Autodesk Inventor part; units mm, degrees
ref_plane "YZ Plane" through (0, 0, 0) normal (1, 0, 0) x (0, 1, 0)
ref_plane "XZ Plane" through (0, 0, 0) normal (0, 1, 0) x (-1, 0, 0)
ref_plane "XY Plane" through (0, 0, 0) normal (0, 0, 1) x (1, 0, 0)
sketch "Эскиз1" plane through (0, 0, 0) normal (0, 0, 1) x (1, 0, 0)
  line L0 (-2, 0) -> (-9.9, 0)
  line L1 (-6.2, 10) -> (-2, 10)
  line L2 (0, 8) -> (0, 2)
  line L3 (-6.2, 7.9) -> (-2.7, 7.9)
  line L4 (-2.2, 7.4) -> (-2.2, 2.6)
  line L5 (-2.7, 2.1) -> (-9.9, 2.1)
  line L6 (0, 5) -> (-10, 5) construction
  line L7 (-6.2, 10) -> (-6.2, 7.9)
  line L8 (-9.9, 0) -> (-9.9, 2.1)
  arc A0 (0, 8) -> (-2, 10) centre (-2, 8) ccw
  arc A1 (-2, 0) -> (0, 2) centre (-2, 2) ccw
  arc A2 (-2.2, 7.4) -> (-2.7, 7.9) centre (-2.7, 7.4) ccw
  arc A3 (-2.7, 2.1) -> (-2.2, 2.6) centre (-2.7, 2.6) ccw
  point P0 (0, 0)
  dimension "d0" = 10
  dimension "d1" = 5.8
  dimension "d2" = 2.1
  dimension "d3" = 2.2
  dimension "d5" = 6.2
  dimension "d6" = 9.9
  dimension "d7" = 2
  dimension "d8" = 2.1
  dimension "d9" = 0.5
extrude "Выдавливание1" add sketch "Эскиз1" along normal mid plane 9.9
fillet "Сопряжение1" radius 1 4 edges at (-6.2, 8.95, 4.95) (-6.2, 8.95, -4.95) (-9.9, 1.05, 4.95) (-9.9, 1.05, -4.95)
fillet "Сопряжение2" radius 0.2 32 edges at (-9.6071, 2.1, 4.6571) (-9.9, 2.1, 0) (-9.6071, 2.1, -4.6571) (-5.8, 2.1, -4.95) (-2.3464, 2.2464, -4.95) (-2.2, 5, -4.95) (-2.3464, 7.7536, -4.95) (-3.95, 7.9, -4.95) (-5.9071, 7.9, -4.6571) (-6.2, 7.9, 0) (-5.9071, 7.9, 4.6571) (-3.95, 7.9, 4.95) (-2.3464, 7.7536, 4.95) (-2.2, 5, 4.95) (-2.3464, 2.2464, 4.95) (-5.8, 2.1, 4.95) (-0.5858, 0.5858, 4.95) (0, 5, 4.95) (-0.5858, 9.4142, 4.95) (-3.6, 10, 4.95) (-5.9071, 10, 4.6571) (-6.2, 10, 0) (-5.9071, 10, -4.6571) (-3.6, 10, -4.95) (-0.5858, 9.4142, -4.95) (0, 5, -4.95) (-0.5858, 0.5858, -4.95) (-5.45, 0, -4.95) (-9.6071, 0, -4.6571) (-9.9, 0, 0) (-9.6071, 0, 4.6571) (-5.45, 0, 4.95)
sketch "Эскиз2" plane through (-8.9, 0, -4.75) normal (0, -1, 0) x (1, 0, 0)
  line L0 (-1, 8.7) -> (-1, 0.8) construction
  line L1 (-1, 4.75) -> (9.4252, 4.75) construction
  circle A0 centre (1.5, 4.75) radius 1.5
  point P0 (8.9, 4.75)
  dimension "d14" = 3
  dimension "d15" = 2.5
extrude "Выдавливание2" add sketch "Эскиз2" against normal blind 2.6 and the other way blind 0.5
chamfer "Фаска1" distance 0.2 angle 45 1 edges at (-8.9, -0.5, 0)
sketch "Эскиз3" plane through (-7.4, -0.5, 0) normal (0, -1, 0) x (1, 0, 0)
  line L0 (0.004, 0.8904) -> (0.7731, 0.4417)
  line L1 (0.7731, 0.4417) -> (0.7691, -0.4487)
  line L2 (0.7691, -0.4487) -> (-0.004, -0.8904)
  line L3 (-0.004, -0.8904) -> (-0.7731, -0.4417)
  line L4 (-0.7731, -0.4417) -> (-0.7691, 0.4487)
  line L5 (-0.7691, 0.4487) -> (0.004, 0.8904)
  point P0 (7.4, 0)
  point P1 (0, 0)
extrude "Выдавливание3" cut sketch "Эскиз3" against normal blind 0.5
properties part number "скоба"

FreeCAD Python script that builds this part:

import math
import FreeCAD as App
import Part
import Sketcher

V = App.Vector
Q = App.Units.Quantity


def edges_at(feature, points):
    """Names of the edges that pass closest to the given points."""
    edges = feature.Shape.Edges
    near = lambda p: min(range(len(edges)), key=lambda i: edges[i].distToShape(Part.Vertex(*p))[0])
    return sorted({f"Edge{near(p) + 1}" for p in points})

doc = App.newDocument("Part")
params = doc.addObject("Spreadsheet::Sheet", "Params")
for row, (alias, value) in enumerate([
    ("sketch1_radius", "2 mm"),
    ("sketch1_radius2", "0.5 mm"),
    ("sketch1_height", "2.1 mm"),
    ("pad1_length", "9.9 mm"),
    ("fillet_radius", "1 mm"),
    ("fillet2_radius", "0.2 mm"),
    ("sketch2_diameter", "3 mm"),
    ("pad2_length", "2.6 mm"),
    ("pad2_length2", "0.5 mm"),
    ("chamfer_size", "0.2 mm"),
    ("pocket1_length", "0.5 mm"),
], start=1):
    params.set(f"A{row}", alias)
    params.set(f"B{row}", "=" + value)
    params.setAlias(f"B{row}", alias)

body = doc.addObject("PartDesign::Body", "Body")

# Sketch on XY plane
sketch1 = doc.addObject("Sketcher::SketchObject", "Sketch")
body.addObject(sketch1)
sketch1.AttachmentSupport = (doc.XY_Plane, [""])
sketch1.MapMode = "FlatFace"
sketch1.addGeometry([
    Part.LineSegment(V(-9.9, 0, 0), V(-2, 0, 0)),  # 0
    Part.ArcOfCircle(Part.Circle(V(-2, 2, 0), V(0, 0, 1), 2), math.radians(-90), math.radians(0)),  # 1
    Part.LineSegment(V(0, 2, 0), V(0, 8, 0)),  # 2
    Part.ArcOfCircle(Part.Circle(V(-2, 8, 0), V(0, 0, 1), 2), math.radians(0), math.radians(90)),  # 3
    Part.LineSegment(V(-2, 10, 0), V(-6.2, 10, 0)),  # 4
    Part.LineSegment(V(-6.2, 10, 0), V(-6.2, 7.9, 0)),  # 5
    Part.LineSegment(V(-6.2, 7.9, 0), V(-2.7, 7.9, 0)),  # 6
    Part.ArcOfCircle(Part.Circle(V(-2.7, 7.4, 0), V(0, 0, 1), 0.5), math.radians(0), math.radians(90)),  # 7
    Part.LineSegment(V(-2.2, 7.4, 0), V(-2.2, 2.6, 0)),  # 8
    Part.ArcOfCircle(Part.Circle(V(-2.7, 2.6, 0), V(0, 0, 1), 0.5), math.radians(-90), math.radians(0)),  # 9
    Part.LineSegment(V(-2.7, 2.1, 0), V(-9.9, 2.1, 0)),  # 10
    Part.LineSegment(V(-9.9, 2.1, 0), V(-9.9, 0, 0)),  # 11
], False)
sketch1.addConstraint([
    Sketcher.Constraint("Tangent", 0, 2, 1, 1),
    Sketcher.Constraint("Tangent", 1, 2, 2, 1),
    Sketcher.Constraint("Tangent", 2, 2, 3, 1),
    Sketcher.Constraint("Tangent", 3, 2, 4, 1),
    Sketcher.Constraint("Coincident", 4, 2, 5, 1),
    Sketcher.Constraint("Coincident", 5, 2, 6, 1),
    Sketcher.Constraint("Tangent", 6, 2, 7, 2),
    Sketcher.Constraint("Tangent", 7, 1, 8, 1),
    Sketcher.Constraint("Tangent", 8, 2, 9, 2),
    Sketcher.Constraint("Tangent", 9, 1, 10, 1),
    Sketcher.Constraint("Coincident", 10, 2, 11, 1),
    Sketcher.Constraint("Coincident", 11, 2, 0, 1),
    Sketcher.Constraint("Horizontal", 0),
    Sketcher.Constraint("Vertical", 2),
    Sketcher.Constraint("Horizontal", 4),
    Sketcher.Constraint("Vertical", 5),
    Sketcher.Constraint("Horizontal", 6),
    Sketcher.Constraint("Vertical", 8),
    Sketcher.Constraint("Horizontal", 10),
    Sketcher.Constraint("Vertical", 11),
    Sketcher.Constraint("Equal", 1, 3),
    Sketcher.Constraint("Equal", 7, 9),
    Sketcher.Constraint("PointOnObject", 0, 2, -1),
    Sketcher.Constraint("PointOnObject", 1, 2, -2),
    Sketcher.Constraint("Equal", 5, 11),
    Sketcher.Constraint("Radius", 1, 2.0),
    Sketcher.Constraint("Radius", 7, 0.5),
    Sketcher.Constraint("DistanceY", 5, 2, 5, 1, 2.1),
    Sketcher.Constraint("DistanceY", -1, 1, 3, 2, 10.0),
    Sketcher.Constraint("DistanceX", 4, 2, -1, 1, 6.2),
    Sketcher.Constraint("DistanceX", 7, 1, -1, 1, 2.2),
    Sketcher.Constraint("DistanceX", 10, 2, -1, 1, 9.9),
])
sketch1.setExpression("Constraints[25]", "Params.sketch1_radius")
sketch1.setExpression("Constraints[26]", "Params.sketch1_radius2")
sketch1.setExpression("Constraints[27]", "Params.sketch1_height")
pad1 = doc.addObject("PartDesign::Pad", "Pad")
body.addObject(pad1)
pad1.Profile = sketch1
pad1.setExpression("Length", "Params.pad1_length")
pad1.Midplane = True
doc.recompute()

fillet = doc.addObject("PartDesign::Fillet", "Fillet")
body.addObject(fillet)
fillet.Base = (pad1, edges_at(pad1, [
    (-6.2, 8.95, 4.95),
    (-6.2, 8.95, -4.95),
    (-9.9, 1.05, 4.95),
    (-9.9, 1.05, -4.95),
]))
fillet.setExpression("Radius", "Params.fillet_radius")
doc.recompute()

fillet2 = doc.addObject("PartDesign::Fillet", "Fillet001")
body.addObject(fillet2)
fillet2.Base = (fillet, edges_at(fillet, [
    (-9.607, 2.1, 4.657),
    (-9.9, 2.1, 0),
    (-9.607, 2.1, -4.657),
    (-5.8, 2.1, -4.95),
    (-2.346, 2.246, -4.95),
    (-2.2, 5, -4.95),
    (-2.346, 7.754, -4.95),
    (-3.95, 7.9, -4.95),
    (-5.907, 7.9, -4.657),
    (-6.2, 7.9, 0),
    (-5.907, 7.9, 4.657),
    (-3.95, 7.9, 4.95),
    (-2.346, 7.754, 4.95),
    (-2.2, 5, 4.95),
    (-2.346, 2.246, 4.95),
    (-5.8, 2.1, 4.95),
    (-0.586, 0.586, 4.95),
    (0, 5, 4.95),
    (-0.586, 9.414, 4.95),
    (-3.6, 10, 4.95),
    (-5.907, 10, 4.657),
    (-6.2, 10, 0),
    (-5.907, 10, -4.657),
    (-3.6, 10, -4.95),
    (-0.586, 9.414, -4.95),
    (0, 5, -4.95),
    (-0.586, 0.586, -4.95),
    (-5.45, 0, -4.95),
    (-9.607, 0, -4.657),
    (-9.9, 0, 0),
    (-9.607, 0, 4.657),
    (-5.45, 0, 4.95),
]))
fillet2.setExpression("Radius", "Params.fillet2_radius")

# Sketch on XZ plane
sketch2 = doc.addObject("Sketcher::SketchObject", "Sketch001")
body.addObject(sketch2)
sketch2.AttachmentSupport = (doc.XZ_Plane, [""])
sketch2.MapMode = "FlatFace"
sketch2.addGeometry(Part.Circle(V(-7.4, 0, 0), V(0, 0, 1), 1.5), False)
sketch2.addConstraint([
    Sketcher.Constraint("PointOnObject", 0, 3, -1),
    Sketcher.Constraint("Diameter", 0, 3.0),
    Sketcher.Constraint("DistanceX", 0, 3, -1, 1, 7.4),
])
sketch2.setExpression("Constraints[1]", "Params.sketch2_diameter")
pad2 = doc.addObject("PartDesign::Pad", "Pad001")
body.addObject(pad2)
pad2.Profile = sketch2
pad2.Type = "TwoLengths"
pad2.setExpression("Length", "Params.pad2_length")
pad2.setExpression("Length2", "Params.pad2_length2")
pad2.Reversed = True
doc.recompute()

chamfer = doc.addObject("PartDesign::Chamfer", "Chamfer")
body.addObject(chamfer)
chamfer.Base = (pad2, edges_at(pad2, [(-8.9, -0.5, 0)]))
chamfer.setExpression("Size", "Params.chamfer_size")

# Sketch on XZ plane
sketch3 = doc.addObject("Sketcher::SketchObject", "Sketch002")
body.addObject(sketch3)
sketch3.AttachmentSupport = (doc.XZ_Plane, [""])
sketch3.MapMode = "FlatFace"
sketch3.AttachmentOffset = App.Placement(V(0, 0, 0.5), App.Rotation())
sketch3.addGeometry([
    Part.LineSegment(V(-6.6, 0.4, 0), V(-7.4, 0.9, 0)),  # 0
    Part.LineSegment(V(-7.4, 0.9, 0), V(-8.2, 0.4, 0)),  # 1
    Part.LineSegment(V(-8.2, 0.4, 0), V(-8.2, -0.4, 0)),  # 2
    Part.LineSegment(V(-8.2, -0.4, 0), V(-7.4, -0.9, 0)),  # 3
    Part.LineSegment(V(-7.4, -0.9, 0), V(-6.6, -0.4, 0)),  # 4
    Part.LineSegment(V(-6.6, -0.4, 0), V(-6.6, 0.4, 0)),  # 5
], False)
sketch3.addConstraint([
    Sketcher.Constraint("Coincident", 0, 2, 1, 1),
    Sketcher.Constraint("Coincident", 1, 2, 2, 1),
    Sketcher.Constraint("Coincident", 2, 2, 3, 1),
    Sketcher.Constraint("Coincident", 3, 2, 4, 1),
    Sketcher.Constraint("Coincident", 4, 2, 5, 1),
    Sketcher.Constraint("Coincident", 5, 2, 0, 1),
    Sketcher.Constraint("Parallel", 0, 3),
    Sketcher.Constraint("Parallel", 1, 4),
    Sketcher.Constraint("Parallel", 2, 5),
    Sketcher.Constraint("Equal", 0, 1),
    Sketcher.Constraint("Equal", 1, 2),
    Sketcher.Constraint("Equal", 2, 3),
    Sketcher.Constraint("Angle", 0, Q("149.7403 deg")),
    Sketcher.Constraint("Angle", 1, Q("-150.259 deg")),
    Sketcher.Constraint("DistanceX", 0, 2, -1, 1, 7.396),
    Sketcher.Constraint("DistanceX", 1, 2, -1, 1, 8.169),
    Sketcher.Constraint("DistanceX", 2, 2, -1, 1, 8.173),
    Sketcher.Constraint("DistanceY", -1, 1, 0, 2, 0.8904),
])
pocket1 = doc.addObject("PartDesign::Pocket", "Pocket")
body.addObject(pocket1)
pocket1.Profile = sketch3
pocket1.setExpression("Length", "Params.pocket1_length")

doc.recompute()
